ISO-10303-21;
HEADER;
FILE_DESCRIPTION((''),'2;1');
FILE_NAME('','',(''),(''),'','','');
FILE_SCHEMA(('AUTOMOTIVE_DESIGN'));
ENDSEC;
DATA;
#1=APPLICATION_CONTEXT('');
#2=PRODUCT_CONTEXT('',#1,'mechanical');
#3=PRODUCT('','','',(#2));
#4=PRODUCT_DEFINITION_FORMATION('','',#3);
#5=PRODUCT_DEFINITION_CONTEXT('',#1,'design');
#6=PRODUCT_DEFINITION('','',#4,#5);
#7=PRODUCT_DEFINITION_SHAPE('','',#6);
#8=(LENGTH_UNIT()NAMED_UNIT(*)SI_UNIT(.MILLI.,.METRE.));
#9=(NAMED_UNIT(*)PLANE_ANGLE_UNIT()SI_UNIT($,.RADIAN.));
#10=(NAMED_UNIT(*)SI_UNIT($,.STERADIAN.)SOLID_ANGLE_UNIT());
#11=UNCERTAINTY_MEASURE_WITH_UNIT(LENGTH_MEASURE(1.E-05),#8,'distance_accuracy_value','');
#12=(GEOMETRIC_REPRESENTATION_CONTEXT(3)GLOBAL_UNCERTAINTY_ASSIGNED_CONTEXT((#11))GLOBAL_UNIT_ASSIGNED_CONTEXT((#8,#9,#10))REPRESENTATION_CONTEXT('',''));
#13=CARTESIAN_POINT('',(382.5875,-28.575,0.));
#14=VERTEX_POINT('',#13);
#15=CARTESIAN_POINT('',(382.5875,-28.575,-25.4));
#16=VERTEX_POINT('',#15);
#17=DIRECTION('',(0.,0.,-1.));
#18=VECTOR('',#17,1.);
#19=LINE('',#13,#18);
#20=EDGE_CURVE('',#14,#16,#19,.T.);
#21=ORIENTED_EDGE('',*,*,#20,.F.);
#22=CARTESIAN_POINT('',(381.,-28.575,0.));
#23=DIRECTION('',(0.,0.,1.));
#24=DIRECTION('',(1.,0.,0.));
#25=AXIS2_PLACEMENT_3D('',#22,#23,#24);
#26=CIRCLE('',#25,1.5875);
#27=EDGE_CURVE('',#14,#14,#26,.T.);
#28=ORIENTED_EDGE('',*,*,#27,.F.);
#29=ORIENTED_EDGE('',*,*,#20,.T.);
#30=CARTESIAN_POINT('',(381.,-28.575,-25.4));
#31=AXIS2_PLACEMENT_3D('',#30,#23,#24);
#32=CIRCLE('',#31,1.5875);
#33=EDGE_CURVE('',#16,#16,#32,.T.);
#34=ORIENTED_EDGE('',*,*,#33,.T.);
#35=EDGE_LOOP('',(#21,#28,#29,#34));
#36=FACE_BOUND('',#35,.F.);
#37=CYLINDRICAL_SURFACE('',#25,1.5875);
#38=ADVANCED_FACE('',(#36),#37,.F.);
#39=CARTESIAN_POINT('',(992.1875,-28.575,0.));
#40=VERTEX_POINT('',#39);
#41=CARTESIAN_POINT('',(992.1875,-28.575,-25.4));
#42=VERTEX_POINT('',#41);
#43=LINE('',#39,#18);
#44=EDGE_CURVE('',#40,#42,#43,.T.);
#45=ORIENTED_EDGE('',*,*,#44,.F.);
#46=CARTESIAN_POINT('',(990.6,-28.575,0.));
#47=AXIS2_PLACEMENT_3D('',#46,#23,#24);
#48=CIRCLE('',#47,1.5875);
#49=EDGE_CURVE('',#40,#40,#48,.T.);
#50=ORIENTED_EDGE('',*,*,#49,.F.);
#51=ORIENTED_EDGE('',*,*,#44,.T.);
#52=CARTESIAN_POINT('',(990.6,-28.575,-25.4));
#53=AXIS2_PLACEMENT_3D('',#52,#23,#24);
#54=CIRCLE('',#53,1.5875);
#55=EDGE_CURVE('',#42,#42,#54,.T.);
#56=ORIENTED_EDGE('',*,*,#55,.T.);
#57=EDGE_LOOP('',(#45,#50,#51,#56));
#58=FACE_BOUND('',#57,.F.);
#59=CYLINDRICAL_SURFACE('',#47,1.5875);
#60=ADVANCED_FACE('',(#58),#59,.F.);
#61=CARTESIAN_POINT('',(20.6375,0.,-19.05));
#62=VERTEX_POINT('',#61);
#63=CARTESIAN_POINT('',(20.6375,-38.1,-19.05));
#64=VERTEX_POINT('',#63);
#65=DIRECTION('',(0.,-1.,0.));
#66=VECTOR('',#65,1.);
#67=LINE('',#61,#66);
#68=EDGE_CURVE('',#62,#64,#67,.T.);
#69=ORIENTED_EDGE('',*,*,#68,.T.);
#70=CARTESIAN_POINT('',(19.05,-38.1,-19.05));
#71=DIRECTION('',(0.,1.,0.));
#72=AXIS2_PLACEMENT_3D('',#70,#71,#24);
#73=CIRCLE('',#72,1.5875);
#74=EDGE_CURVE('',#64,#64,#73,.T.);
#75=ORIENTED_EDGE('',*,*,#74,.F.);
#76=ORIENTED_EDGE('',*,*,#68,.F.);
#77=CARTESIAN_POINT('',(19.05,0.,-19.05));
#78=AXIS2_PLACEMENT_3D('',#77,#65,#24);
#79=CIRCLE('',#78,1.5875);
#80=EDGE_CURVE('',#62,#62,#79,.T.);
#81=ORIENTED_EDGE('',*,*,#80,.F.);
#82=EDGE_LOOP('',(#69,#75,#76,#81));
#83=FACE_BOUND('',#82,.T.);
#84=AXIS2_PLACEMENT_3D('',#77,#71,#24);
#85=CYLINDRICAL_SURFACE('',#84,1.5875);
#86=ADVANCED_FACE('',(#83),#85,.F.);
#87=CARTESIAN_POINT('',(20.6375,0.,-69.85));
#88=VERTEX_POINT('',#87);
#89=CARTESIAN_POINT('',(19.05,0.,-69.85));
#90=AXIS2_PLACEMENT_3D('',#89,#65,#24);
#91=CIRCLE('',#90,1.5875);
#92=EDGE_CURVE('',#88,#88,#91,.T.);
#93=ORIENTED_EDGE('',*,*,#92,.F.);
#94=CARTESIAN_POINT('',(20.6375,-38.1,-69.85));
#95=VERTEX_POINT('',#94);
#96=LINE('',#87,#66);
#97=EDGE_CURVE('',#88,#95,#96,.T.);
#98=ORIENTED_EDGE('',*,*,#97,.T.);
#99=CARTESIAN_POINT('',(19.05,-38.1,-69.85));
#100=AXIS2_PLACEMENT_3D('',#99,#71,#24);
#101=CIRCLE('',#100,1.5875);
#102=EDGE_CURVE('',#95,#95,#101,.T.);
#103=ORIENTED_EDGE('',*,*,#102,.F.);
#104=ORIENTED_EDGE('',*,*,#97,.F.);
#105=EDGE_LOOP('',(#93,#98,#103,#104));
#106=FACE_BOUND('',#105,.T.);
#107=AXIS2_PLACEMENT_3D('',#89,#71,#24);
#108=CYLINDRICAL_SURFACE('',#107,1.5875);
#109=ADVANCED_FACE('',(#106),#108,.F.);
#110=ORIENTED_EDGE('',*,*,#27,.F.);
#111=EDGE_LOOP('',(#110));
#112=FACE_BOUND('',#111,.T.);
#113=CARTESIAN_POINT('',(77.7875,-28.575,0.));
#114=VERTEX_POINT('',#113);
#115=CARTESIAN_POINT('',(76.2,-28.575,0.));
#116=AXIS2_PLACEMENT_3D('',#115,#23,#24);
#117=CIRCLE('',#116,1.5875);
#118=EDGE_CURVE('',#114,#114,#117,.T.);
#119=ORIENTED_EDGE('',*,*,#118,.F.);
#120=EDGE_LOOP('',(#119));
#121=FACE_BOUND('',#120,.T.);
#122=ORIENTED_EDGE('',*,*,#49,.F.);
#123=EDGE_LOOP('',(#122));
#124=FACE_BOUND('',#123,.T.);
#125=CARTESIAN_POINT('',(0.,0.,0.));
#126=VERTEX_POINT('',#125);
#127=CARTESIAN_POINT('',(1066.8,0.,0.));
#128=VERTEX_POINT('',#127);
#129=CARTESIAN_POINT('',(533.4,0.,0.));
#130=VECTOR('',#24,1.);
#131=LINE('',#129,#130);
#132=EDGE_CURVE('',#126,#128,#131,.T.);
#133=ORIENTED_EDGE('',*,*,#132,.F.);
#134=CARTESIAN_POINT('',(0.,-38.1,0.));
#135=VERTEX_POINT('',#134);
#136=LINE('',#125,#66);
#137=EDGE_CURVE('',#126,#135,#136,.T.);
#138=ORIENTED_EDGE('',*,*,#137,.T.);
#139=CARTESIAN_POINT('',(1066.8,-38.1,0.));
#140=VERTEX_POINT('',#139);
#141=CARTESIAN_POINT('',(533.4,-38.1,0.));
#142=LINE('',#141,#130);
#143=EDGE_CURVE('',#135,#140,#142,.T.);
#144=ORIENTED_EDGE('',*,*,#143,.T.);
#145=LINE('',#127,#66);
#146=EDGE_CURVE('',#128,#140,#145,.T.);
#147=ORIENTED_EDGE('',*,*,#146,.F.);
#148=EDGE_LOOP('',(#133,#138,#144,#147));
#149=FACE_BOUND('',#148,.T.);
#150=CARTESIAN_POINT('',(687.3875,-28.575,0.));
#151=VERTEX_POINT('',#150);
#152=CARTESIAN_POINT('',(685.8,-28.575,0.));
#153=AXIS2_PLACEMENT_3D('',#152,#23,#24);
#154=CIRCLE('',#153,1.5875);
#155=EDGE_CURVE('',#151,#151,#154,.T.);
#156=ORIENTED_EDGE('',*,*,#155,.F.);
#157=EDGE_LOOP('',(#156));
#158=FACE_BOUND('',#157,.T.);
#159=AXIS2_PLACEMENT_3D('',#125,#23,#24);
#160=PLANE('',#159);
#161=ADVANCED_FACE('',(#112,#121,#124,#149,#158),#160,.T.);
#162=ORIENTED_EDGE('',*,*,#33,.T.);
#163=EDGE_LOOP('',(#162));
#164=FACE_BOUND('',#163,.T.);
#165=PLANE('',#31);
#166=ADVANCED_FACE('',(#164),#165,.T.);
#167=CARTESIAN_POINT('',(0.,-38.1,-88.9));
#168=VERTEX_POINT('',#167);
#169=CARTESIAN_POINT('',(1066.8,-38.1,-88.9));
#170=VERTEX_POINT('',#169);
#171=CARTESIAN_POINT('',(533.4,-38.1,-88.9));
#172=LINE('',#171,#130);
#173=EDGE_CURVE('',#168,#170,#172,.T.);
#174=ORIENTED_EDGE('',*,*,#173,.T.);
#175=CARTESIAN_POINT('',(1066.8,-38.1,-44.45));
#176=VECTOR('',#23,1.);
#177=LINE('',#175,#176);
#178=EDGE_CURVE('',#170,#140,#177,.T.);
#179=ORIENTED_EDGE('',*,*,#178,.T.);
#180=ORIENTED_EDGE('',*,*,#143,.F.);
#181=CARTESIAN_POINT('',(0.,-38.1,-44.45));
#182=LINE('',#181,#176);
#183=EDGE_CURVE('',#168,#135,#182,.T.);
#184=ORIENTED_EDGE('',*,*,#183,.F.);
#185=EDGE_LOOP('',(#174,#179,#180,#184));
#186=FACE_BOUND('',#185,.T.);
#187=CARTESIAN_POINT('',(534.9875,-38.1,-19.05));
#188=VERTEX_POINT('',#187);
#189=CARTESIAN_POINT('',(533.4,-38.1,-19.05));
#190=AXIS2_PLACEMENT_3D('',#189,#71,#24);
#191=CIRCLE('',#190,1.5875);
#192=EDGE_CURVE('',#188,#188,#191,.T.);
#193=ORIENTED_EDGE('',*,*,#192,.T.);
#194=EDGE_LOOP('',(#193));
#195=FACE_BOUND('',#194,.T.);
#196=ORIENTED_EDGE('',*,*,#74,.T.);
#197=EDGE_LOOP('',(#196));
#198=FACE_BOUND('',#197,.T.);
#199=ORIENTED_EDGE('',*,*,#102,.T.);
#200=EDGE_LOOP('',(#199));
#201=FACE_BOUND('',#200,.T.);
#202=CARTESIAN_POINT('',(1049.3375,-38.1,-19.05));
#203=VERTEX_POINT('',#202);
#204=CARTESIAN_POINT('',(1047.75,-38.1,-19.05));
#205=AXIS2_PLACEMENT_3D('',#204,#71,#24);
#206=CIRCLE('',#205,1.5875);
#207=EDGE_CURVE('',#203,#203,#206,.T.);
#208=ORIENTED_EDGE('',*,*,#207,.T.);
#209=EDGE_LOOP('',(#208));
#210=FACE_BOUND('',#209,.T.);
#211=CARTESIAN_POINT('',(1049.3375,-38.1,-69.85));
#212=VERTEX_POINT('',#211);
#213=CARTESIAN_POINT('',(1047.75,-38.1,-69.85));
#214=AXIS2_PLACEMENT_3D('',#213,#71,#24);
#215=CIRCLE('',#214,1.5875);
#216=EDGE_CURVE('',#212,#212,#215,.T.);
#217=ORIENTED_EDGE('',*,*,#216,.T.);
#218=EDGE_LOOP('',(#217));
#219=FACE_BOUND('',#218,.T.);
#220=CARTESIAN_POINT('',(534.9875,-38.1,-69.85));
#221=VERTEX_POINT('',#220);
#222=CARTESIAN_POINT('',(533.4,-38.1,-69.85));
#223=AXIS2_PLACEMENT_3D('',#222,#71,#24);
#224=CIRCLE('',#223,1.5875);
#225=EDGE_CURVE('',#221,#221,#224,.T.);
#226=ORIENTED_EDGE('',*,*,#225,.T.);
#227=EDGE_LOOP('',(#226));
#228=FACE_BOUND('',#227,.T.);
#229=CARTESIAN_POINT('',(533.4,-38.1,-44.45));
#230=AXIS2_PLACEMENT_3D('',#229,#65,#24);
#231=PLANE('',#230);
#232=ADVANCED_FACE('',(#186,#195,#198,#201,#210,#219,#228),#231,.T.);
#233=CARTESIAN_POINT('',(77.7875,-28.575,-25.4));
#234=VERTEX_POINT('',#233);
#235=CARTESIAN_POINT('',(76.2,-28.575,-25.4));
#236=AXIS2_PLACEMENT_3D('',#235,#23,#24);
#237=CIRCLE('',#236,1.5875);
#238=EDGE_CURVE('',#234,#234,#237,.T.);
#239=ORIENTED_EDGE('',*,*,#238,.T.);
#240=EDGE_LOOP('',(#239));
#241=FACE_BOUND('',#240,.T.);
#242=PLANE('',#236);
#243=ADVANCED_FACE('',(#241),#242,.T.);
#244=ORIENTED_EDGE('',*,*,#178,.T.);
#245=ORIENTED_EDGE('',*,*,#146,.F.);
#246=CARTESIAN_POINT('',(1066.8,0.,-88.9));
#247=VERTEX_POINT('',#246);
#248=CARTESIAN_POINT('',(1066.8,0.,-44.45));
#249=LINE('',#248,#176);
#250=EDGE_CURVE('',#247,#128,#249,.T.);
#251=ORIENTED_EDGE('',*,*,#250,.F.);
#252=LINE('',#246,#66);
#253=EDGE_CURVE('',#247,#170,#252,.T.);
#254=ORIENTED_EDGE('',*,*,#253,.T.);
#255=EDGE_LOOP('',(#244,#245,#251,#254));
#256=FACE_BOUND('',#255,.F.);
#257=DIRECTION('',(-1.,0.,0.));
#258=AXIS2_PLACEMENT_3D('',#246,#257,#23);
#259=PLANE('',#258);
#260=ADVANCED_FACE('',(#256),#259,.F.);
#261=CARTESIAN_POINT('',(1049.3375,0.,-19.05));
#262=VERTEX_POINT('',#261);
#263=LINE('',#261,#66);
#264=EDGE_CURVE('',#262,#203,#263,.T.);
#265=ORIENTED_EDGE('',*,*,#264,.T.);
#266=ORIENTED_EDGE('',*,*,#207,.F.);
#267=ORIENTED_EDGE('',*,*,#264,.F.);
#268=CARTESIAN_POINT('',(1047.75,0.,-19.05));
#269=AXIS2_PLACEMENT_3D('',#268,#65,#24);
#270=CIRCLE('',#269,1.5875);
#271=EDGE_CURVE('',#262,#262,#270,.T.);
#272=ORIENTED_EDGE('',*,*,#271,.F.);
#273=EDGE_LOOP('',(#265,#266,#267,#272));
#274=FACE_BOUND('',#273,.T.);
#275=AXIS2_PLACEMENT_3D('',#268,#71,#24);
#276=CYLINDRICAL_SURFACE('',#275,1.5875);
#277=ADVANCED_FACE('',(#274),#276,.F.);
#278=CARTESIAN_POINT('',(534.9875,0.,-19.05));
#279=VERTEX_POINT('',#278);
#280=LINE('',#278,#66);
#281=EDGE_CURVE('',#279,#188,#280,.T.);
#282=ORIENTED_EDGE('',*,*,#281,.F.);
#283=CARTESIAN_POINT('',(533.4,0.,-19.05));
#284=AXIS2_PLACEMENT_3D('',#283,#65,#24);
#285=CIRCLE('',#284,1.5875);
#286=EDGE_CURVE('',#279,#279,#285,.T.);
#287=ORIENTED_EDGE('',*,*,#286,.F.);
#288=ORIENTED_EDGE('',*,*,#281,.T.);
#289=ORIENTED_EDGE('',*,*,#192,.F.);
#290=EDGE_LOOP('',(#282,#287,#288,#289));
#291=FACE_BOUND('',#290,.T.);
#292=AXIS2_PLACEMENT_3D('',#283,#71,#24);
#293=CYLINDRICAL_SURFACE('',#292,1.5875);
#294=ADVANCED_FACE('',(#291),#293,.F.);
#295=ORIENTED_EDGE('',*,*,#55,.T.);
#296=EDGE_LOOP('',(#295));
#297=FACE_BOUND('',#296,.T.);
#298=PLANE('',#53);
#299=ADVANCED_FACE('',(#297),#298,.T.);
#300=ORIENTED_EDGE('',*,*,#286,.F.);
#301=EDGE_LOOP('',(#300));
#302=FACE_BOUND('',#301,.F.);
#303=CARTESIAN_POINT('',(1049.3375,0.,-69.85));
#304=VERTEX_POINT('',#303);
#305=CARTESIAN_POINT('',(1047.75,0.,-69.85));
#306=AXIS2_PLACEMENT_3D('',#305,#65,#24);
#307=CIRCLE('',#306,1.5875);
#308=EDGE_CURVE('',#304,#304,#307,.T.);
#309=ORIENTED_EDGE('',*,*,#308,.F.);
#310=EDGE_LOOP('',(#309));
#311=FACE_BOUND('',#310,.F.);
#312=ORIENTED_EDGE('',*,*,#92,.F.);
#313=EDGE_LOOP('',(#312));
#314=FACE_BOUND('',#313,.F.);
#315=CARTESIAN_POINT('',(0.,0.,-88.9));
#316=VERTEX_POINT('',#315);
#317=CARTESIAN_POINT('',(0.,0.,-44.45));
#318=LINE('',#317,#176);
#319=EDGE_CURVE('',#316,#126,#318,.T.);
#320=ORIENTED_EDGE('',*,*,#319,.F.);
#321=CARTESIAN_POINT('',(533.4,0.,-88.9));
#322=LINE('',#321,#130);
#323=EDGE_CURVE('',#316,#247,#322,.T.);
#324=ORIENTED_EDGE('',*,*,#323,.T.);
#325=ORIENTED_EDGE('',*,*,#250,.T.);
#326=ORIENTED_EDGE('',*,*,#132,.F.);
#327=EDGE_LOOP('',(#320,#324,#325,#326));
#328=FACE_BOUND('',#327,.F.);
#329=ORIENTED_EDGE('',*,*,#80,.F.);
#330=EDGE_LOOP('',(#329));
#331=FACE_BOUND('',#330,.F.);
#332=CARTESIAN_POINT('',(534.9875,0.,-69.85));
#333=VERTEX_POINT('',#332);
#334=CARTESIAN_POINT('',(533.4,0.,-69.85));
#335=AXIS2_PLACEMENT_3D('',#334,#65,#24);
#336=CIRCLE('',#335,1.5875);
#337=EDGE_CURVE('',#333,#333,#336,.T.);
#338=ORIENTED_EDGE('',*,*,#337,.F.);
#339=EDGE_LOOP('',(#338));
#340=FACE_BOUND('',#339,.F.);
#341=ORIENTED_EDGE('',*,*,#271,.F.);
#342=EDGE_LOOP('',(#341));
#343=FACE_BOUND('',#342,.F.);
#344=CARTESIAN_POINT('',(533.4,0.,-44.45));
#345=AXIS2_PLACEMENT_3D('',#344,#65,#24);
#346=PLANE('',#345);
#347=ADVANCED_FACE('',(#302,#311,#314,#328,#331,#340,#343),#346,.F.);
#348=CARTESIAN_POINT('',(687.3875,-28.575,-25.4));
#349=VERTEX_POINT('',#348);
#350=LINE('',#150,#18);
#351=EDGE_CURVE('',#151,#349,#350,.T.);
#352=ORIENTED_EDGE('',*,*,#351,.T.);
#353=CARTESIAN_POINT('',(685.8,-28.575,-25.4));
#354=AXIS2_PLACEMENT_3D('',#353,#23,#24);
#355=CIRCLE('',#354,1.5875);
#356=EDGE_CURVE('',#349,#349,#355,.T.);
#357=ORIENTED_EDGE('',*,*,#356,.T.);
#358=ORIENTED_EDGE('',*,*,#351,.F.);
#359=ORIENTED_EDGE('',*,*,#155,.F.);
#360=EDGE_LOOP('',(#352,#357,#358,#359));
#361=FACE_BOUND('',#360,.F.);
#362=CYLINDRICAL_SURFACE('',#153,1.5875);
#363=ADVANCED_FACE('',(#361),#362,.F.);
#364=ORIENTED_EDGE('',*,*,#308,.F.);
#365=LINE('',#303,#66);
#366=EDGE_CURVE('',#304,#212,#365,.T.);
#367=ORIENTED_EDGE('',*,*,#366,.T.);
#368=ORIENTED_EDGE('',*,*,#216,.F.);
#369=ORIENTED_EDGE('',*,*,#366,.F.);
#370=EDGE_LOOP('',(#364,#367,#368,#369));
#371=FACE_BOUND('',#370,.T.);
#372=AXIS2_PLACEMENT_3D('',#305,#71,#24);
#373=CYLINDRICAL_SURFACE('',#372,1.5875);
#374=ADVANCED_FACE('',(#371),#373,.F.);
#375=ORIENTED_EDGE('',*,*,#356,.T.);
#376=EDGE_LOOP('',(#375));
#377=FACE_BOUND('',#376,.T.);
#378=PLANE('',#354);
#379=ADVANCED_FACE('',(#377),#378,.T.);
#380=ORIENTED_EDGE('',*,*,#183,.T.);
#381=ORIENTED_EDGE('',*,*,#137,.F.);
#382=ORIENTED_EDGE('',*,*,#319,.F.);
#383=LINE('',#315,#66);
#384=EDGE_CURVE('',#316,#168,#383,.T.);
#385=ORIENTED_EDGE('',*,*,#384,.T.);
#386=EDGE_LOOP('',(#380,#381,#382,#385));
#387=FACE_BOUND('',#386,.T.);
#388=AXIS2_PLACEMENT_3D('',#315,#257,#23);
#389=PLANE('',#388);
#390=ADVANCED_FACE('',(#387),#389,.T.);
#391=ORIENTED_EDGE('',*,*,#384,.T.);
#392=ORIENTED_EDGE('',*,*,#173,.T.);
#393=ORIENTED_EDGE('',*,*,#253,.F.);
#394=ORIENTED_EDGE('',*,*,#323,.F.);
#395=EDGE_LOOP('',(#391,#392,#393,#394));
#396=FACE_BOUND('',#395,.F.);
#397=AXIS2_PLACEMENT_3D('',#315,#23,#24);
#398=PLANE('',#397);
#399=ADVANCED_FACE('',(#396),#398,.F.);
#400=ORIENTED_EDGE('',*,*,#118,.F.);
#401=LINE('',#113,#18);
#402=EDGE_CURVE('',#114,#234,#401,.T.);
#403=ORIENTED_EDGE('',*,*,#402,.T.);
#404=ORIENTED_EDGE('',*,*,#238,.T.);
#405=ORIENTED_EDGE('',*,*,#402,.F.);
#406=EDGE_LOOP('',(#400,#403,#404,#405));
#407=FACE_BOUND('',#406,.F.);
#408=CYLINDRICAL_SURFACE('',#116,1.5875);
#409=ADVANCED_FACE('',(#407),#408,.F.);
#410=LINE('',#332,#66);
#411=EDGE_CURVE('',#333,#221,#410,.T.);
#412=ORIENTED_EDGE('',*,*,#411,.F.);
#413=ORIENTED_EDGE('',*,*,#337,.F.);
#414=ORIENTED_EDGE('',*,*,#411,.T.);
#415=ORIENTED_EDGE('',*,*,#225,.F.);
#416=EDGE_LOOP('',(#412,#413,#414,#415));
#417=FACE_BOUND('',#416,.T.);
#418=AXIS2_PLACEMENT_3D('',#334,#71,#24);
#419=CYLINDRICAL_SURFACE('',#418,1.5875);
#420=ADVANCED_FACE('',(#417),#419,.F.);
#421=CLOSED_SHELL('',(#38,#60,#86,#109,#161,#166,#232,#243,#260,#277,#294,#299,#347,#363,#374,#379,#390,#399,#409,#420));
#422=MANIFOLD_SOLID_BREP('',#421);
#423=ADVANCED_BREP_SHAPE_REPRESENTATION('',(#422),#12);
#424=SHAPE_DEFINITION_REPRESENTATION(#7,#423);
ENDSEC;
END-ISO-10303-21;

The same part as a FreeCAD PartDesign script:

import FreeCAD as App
import Part
import Sketcher
from FreeCAD import Vector
Q = App.Units.Quantity

doc = App.newDocument("Part")
params = doc.addObject("Spreadsheet::Sheet", "Params")
for row, (alias, value) in enumerate([
    ("sketch1_width", "42 in"),
    ("sketch1_height", "3.5 in"),
    ("pad1_length", "1.5 in"),
    ("sketch2_diameter", "0.125 in"),
    ("pocket1_length", "1 in"),
    ("sketch3_diameter", "0.125 in"),
], start=1):
    params.set(f"A{row}", alias)
    params.set(f"B{row}", "=" + value)
    params.setAlias(f"B{row}", alias)

body = doc.addObject("PartDesign::Body", "Body")

# Sketch on XZ plane
sketch1 = body.newObject("Sketcher::SketchObject", "Sketch")
sketch1.AttachmentSupport = (doc.getObject("XZ_Plane"), [""])
sketch1.MapMode = "FlatFace"
sketch1.addGeometry(Part.LineSegment(Vector(0, 0, 0), Vector(0, -89, 0)), False)
sketch1.addGeometry(Part.LineSegment(Vector(0, -89, 0), Vector(1067, -89, 0)), False)
sketch1.addGeometry(Part.LineSegment(Vector(1067, -89, 0), Vector(1067, 0, 0)), False)
sketch1.addGeometry(Part.LineSegment(Vector(1067, 0, 0), Vector(0, 0, 0)), False)
sketch1.addConstraint(Sketcher.Constraint("Coincident", 0, 2, 1, 1))
sketch1.addConstraint(Sketcher.Constraint("Coincident", 1, 2, 2, 1))
sketch1.addConstraint(Sketcher.Constraint("Coincident", 2, 2, 3, 1))
sketch1.addConstraint(Sketcher.Constraint("Coincident", 3, 2, 0, 1))
sketch1.addConstraint(Sketcher.Constraint("Vertical", 0))
sketch1.addConstraint(Sketcher.Constraint("Horizontal", 1))
sketch1.addConstraint(Sketcher.Constraint("Vertical", 2))
sketch1.addConstraint(Sketcher.Constraint("Horizontal", 3))
sketch1.addConstraint(Sketcher.Constraint("Coincident", 3, 2, -1, 1))
sketch1.addConstraint(Sketcher.Constraint("DistanceX", 1, 1, 1, 2, Q("42 in")))
sketch1.addConstraint(Sketcher.Constraint("DistanceY", 0, 2, 0, 1, Q("3.5 in")))
sketch1.setExpression("Constraints[9]", "Params.sketch1_width")
sketch1.setExpression("Constraints[10]", "Params.sketch1_height")
pad1 = body.newObject("PartDesign::Pad", "Pad")
pad1.Profile = sketch1
pad1.setExpression("Length", "Params.pad1_length")

# Sketch on XY plane
sketch2 = body.newObject("Sketcher::SketchObject", "Sketch001")
sketch2.AttachmentSupport = (doc.getObject("XY_Plane"), [""])
sketch2.MapMode = "FlatFace"
sketch2.addGeometry(Part.Circle(Vector(76.2, -28.6, 0), Vector(0, 0, 1), 1.6), False)
sketch2.addGeometry(Part.Circle(Vector(381, -28.6, 0), Vector(0, 0, 1), 1.6), False)
sketch2.addGeometry(Part.Circle(Vector(685.8, -28.6, 0), Vector(0, 0, 1), 1.6), False)
sketch2.addGeometry(Part.Circle(Vector(990.6, -28.6, 0), Vector(0, 0, 1), 1.6), False)
sketch2.addConstraint(Sketcher.Constraint("Equal", 0, 1))
sketch2.addConstraint(Sketcher.Constraint("Equal", 1, 2))
sketch2.addConstraint(Sketcher.Constraint("Equal", 2, 3))
sketch2.addConstraint(Sketcher.Constraint("Horizontal", 0, 3, 1, 3))
sketch2.addConstraint(Sketcher.Constraint("Horizontal", 1, 3, 2, 3))
sketch2.addConstraint(Sketcher.Constraint("Horizontal", 2, 3, 3, 3))
sketch2.addConstraint(Sketcher.Constraint("Diameter", 0, Q("0.125 in")))
sketch2.addConstraint(Sketcher.Constraint("DistanceX", -1, 1, 0, 3, Q("3 in")))
sketch2.addConstraint(Sketcher.Constraint("DistanceX", -1, 1, 1, 3, Q("15 in")))
sketch2.addConstraint(Sketcher.Constraint("DistanceX", -1, 1, 2, 3, Q("27 in")))
sketch2.addConstraint(Sketcher.Constraint("DistanceX", -1, 1, 3, 3, Q("39 in")))
sketch2.addConstraint(Sketcher.Constraint("DistanceY", 0, 3, -1, 1, Q("1.125 in")))
sketch2.setExpression("Constraints[6]", "Params.sketch2_diameter")
pocket1 = body.newObject("PartDesign::Pocket", "Pocket")
pocket1.Profile = sketch2
pocket1.setExpression("Length", "Params.pocket1_length")

# Sketch on XZ plane
sketch3 = body.newObject("Sketcher::SketchObject", "Sketch002")
sketch3.AttachmentSupport = (doc.getObject("XZ_Plane"), [""])
sketch3.MapMode = "FlatFace"
sketch3.addGeometry(Part.Circle(Vector(19.1, -19.1, 0), Vector(0, 0, 1), 1.6), False)
sketch3.addGeometry(Part.Circle(Vector(19.1, -69.8, 0), Vector(0, 0, 1), 1.6), False)
sketch3.addGeometry(Part.Circle(Vector(533.4, -19.1, 0), Vector(0, 0, 1), 1.6), False)
sketch3.addGeometry(Part.Circle(Vector(533.4, -69.8, 0), Vector(0, 0, 1), 1.6), False)
sketch3.addGeometry(Part.Circle(Vector(1047.8, -19.1, 0), Vector(0, 0, 1), 1.6), False)
sketch3.addGeometry(Part.Circle(Vector(1047.8, -69.8, 0), Vector(0, 0, 1), 1.6), False)
sketch3.addConstraint(Sketcher.Constraint("Equal", 0, 1))
sketch3.addConstraint(Sketcher.Constraint("Equal", 1, 2))
sketch3.addConstraint(Sketcher.Constraint("Equal", 2, 3))
sketch3.addConstraint(Sketcher.Constraint("Equal", 3, 4))
sketch3.addConstraint(Sketcher.Constraint("Equal", 4, 5))
sketch3.addConstraint(Sketcher.Constraint("Horizontal", 0, 3, 2, 3))
sketch3.addConstraint(Sketcher.Constraint("Horizontal", 1, 3, 3, 3))
sketch3.addConstraint(Sketcher.Constraint("Horizontal", 2, 3, 4, 3))
sketch3.addConstraint(Sketcher.Constraint("Horizontal", 3, 3, 5, 3))
sketch3.addConstraint(Sketcher.Constraint("Vertical", 0, 3, 1, 3))
sketch3.addConstraint(Sketcher.Constraint("Vertical", 2, 3, 3, 3))
sketch3.addConstraint(Sketcher.Constraint("Vertical", 4, 3, 5, 3))
sketch3.addConstraint(Sketcher.Constraint("Diameter", 0, Q("0.125 in")))
sketch3.addConstraint(Sketcher.Constraint("DistanceX", -1, 1, 2, 3, Q("21 in")))
sketch3.addConstraint(Sketcher.Constraint("DistanceY", 1, 3, 0, 3, Q("2 in")))
sketch3.addConstraint(Sketcher.Constraint("DistanceX", 0, 3, 4, 3, Q("40.5 in")))
sketch3.addConstraint(Sketcher.Constraint("DistanceX", -1, 1, 0, 3, Q("0.75 in")))
sketch3.addConstraint(Sketcher.Constraint("DistanceY", 0, 3, -1, 1, Q("0.75 in")))
sketch3.setExpression("Constraints[12]", "Params.sketch3_diameter")
pocket2 = body.newObject("PartDesign::Pocket", "Pocket001")
pocket2.Profile = sketch3
pocket2.Type = "ThroughAll"
pocket2.Reversed = True

doc.recompute()
